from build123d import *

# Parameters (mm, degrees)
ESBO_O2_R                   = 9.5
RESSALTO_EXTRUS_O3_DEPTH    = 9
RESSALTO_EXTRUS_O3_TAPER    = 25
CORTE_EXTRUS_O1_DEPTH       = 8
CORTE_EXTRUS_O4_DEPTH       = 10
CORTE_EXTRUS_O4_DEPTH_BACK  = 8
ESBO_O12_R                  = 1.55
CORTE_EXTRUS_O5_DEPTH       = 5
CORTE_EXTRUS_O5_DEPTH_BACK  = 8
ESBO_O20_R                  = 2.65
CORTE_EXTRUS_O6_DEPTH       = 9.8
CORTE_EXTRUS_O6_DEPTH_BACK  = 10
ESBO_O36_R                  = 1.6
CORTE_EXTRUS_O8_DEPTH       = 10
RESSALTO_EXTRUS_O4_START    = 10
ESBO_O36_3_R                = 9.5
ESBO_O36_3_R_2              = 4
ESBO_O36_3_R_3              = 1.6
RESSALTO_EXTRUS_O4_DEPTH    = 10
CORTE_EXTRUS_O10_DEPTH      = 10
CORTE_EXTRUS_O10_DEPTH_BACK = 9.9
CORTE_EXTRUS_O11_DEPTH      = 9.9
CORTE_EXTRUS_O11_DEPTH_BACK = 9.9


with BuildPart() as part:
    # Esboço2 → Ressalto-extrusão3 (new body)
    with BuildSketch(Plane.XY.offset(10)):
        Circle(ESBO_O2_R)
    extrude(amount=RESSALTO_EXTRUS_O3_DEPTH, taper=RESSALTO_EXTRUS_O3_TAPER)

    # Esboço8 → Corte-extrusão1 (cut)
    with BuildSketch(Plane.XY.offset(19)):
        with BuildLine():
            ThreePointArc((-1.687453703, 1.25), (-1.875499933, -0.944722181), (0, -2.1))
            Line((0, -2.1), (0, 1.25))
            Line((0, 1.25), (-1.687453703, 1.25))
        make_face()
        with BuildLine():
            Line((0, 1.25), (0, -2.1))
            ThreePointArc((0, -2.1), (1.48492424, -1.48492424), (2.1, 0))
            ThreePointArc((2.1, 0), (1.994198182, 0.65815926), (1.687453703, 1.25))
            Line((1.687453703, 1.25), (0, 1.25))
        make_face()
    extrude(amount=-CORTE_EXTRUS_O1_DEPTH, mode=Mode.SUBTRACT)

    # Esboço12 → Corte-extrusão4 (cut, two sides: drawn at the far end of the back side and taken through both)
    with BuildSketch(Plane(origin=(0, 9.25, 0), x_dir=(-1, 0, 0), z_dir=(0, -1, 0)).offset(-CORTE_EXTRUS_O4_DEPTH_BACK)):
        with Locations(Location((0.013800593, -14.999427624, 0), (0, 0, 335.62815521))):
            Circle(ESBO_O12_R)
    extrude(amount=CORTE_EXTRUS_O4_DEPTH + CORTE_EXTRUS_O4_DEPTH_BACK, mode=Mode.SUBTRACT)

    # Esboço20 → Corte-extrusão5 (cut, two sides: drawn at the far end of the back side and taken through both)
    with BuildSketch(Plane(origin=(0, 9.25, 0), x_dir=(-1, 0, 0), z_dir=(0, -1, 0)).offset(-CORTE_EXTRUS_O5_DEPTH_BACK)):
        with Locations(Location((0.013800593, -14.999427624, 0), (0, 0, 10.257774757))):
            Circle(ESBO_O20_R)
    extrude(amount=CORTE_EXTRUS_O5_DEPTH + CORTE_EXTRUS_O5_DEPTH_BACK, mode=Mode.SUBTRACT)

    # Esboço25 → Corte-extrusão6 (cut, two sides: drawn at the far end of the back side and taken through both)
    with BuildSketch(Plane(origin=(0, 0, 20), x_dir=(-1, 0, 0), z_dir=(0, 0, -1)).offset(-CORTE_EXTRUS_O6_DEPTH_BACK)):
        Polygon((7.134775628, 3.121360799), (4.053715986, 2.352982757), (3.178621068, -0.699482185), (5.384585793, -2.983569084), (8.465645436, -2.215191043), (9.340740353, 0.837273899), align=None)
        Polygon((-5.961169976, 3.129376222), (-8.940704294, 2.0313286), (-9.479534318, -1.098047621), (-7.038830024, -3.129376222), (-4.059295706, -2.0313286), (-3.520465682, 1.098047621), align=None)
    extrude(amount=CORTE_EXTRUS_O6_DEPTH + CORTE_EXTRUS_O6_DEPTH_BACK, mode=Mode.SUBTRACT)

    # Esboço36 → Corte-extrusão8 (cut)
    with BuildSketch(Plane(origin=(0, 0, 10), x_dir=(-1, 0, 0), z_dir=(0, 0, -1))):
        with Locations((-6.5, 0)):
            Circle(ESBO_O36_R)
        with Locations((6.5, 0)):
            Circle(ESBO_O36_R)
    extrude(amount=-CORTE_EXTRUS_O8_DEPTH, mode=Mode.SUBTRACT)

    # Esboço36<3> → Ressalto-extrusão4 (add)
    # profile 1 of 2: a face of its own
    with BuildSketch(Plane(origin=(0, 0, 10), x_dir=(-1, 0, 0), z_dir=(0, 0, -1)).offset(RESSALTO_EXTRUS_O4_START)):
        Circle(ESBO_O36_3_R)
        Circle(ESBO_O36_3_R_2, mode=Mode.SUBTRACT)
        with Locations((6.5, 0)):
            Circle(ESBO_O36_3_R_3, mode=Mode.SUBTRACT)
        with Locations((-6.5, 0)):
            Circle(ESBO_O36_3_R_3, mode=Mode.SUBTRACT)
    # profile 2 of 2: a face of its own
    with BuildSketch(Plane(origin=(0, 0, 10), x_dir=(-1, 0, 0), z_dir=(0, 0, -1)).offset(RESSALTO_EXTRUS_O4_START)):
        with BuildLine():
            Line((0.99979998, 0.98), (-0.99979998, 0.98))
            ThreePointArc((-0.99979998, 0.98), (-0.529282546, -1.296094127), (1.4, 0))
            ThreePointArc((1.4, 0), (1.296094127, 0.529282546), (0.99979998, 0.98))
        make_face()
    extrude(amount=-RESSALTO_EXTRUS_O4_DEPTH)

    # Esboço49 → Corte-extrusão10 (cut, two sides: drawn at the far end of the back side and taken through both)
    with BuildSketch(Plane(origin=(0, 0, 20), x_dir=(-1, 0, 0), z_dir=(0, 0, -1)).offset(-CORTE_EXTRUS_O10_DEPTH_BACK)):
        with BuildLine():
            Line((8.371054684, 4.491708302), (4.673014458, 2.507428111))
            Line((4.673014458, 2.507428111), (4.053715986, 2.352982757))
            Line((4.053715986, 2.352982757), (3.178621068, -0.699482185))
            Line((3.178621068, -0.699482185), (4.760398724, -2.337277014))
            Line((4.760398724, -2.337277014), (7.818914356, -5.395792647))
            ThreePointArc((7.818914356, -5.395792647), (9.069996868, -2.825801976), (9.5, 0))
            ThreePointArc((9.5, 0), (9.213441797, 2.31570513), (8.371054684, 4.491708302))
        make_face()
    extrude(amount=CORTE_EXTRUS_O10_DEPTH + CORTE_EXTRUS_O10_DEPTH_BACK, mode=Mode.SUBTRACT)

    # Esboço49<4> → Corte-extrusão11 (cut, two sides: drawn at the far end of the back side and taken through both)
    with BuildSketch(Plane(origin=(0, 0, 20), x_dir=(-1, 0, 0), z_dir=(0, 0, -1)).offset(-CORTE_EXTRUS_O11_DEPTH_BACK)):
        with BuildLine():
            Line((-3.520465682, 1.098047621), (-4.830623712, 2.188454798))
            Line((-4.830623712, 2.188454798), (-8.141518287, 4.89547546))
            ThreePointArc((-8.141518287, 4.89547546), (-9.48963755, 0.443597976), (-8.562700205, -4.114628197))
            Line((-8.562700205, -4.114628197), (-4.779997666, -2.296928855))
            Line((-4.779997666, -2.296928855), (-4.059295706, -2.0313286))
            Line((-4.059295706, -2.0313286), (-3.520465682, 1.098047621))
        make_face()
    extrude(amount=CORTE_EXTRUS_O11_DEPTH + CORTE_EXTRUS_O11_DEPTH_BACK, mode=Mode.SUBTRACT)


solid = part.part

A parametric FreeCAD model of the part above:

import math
import FreeCAD as App
import Part
import Sketcher

V = App.Vector
Q = App.Units.Quantity

doc = App.newDocument("Part")
body = doc.addObject("PartDesign::Body", "Body")

sketch1 = body.newObject("Sketcher::SketchObject", "Sketch")
sketch1.AttachmentSupport = (doc.getObject("XY_Plane"), [""])
sketch1.MapMode = "FlatFace"
sketch1.AttachmentOffset = App.Placement(V(0, 0, 10), App.Rotation())
sketch1.addGeometry(Part.Circle(V(0, 0, 0), V(0, 0, 1), 10), False)
sketch1.addConstraint(Sketcher.Constraint("Coincident", 0, 3, -1, 1))
sketch1.addConstraint(Sketcher.Constraint("Diameter", 0, Q("19 mm")))
pad1 = body.newObject("PartDesign::Pad", "Pad")
pad1.Profile = sketch1
pad1.Length = 9
pad1.TaperAngle = -25

sketch2 = body.newObject("Sketcher::SketchObject", "Sketch001")
sketch2.AttachmentSupport = (doc.getObject("XY_Plane"), [""])
sketch2.MapMode = "FlatFace"
sketch2.AttachmentOffset = App.Placement(V(0, 0, 19), App.Rotation())
sketch2.addGeometry(Part.ArcOfCircle(Part.Circle(V(0, 0, 0), V(0, 0, 1), 2.1), math.radians(143), math.radians(270)), False)
sketch2.addGeometry(Part.ArcOfCircle(Part.Circle(V(0, 0, 0), V(0, 0, 1), 2.1), math.radians(-90), math.radians(0)), False)
sketch2.addGeometry(Part.ArcOfCircle(Part.Circle(V(0, 0, 0), V(0, 0, 1), 2.1), math.radians(0), math.radians(37)), False)
sketch2.addGeometry(Part.LineSegment(V(1.7, 1.2, 0), V(-1.7, 1.2, 0)), False)
sketch2.addConstraint(Sketcher.Constraint("Tangent", 0, 2, 1, 1))
sketch2.addConstraint(Sketcher.Constraint("Tangent", 1, 2, 2, 1))
sketch2.addConstraint(Sketcher.Constraint("Coincident", 2, 2, 3, 1))
sketch2.addConstraint(Sketcher.Constraint("Coincident", 3, 2, 0, 1))
sketch2.addConstraint(Sketcher.Constraint("Horizontal", 3))
sketch2.addConstraint(Sketcher.Constraint("Coincident", 0, 3, -1, 1))
sketch2.addConstraint(Sketcher.Constraint("Coincident", 2, 3, -1, 1))
sketch2.addConstraint(Sketcher.Constraint("PointOnObject", 0, 2, -2))
sketch2.addConstraint(Sketcher.Constraint("PointOnObject", 1, 2, -1))
sketch2.addConstraint(Sketcher.Constraint("Radius", 0, Q("2.1 mm")))
sketch2.addConstraint(Sketcher.Constraint("DistanceY", -1, 1, 2, 2, Q("1.25 mm")))
pocket1 = body.newObject("PartDesign::Pocket", "Pocket")
pocket1.Profile = sketch2
pocket1.Length = 8

sketch3 = body.newObject("Sketcher::SketchObject", "Sketch002")
sketch3.AttachmentSupport = (doc.getObject("XZ_Plane"), [""])
sketch3.MapMode = "FlatFace"
sketch3.AttachmentOffset = App.Placement(V(0, 0, -9.25), App.Rotation())
sketch3.addGeometry(Part.Circle(V(0, 15, 0), V(0, 0, 1), 1.6), False)
sketch3.addConstraint(Sketcher.Constraint("Diameter", 0, Q("3.1 mm")))
sketch3.addConstraint(Sketcher.Constraint("DistanceX", 0, 3, -1, 1, Q("0.013801 mm")))
sketch3.addConstraint(Sketcher.Constraint("DistanceY", -1, 1, 0, 3, Q("14.999428 mm")))
pocket2 = body.newObject("PartDesign::Pocket", "Pocket001")
pocket2.Profile = sketch3
pocket2.Type = "TwoLengths"
pocket2.Length = 10
pocket2.Length2 = 8
pocket2.Reversed = True

sketch4 = body.newObject("Sketcher::SketchObject", "Sketch003")
sketch4.AttachmentSupport = (doc.getObject("XZ_Plane"), [""])
sketch4.MapMode = "FlatFace"
sketch4.AttachmentOffset = App.Placement(V(0, 0, -9.25), App.Rotation())
sketch4.addGeometry(Part.Circle(V(0, 15, 0), V(0, 0, 1), 2.6), False)
sketch4.addConstraint(Sketcher.Constraint("Diameter", 0, Q("5.3 mm")))
sketch4.addConstraint(Sketcher.Constraint("DistanceX", 0, 3, -1, 1, Q("0.013801 mm")))
sketch4.addConstraint(Sketcher.Constraint("DistanceY", -1, 1, 0, 3, Q("14.999428 mm")))
pocket3 = body.newObject("PartDesign::Pocket", "Pocket002")
pocket3.Profile = sketch4
pocket3.Type = "TwoLengths"
pocket3.Length = 5
pocket3.Length2 = 8
pocket3.Reversed = True

sketch5 = body.newObject("Sketcher::SketchObject", "Sketch004")
sketch5.AttachmentSupport = (doc.getObject("XY_Plane"), [""])
sketch5.MapMode = "FlatFace"
sketch5.AttachmentOffset = App.Placement(V(0, 0, 20), App.Rotation())
sketch5.addGeometry(Part.LineSegment(V(-7.1, 3.1, 0), V(-4.1, 2.4, 0)), False)
sketch5.addGeometry(Part.LineSegment(V(-4.1, 2.4, 0), V(-3.2, -0.7, 0)), False)
sketch5.addGeometry(Part.LineSegment(V(-3.2, -0.7, 0), V(-5.4, -3, 0)), False)
sketch5.addGeometry(Part.LineSegment(V(-5.4, -3, 0), V(-8.5, -2.2, 0)), False)
sketch5.addGeometry(Part.LineSegment(V(-8.5, -2.2, 0), V(-9.3, 0.8, 0)), False)
sketch5.addGeometry(Part.LineSegment(V(-9.3, 0.8, 0), V(-7.1, 3.1, 0)), False)
sketch5.addGeometry(Part.LineSegment(V(6, 3.1, 0), V(8.9, 2, 0)), False)
sketch5.addGeometry(Part.LineSegment(V(8.9, 2, 0), V(9.5, -1.1, 0)), False)
sketch5.addGeometry(Part.LineSegment(V(9.5, -1.1, 0), V(7, -3.1, 0)), False)
sketch5.addGeometry(Part.LineSegment(V(7, -3.1, 0), V(4.1, -2, 0)), False)
sketch5.addGeometry(Part.LineSegment(V(4.1, -2, 0), V(3.5, 1.1, 0)), False)
sketch5.addGeometry(Part.LineSegment(V(3.5, 1.1, 0), V(6, 3.1, 0)), False)
sketch5.addConstraint(Sketcher.Constraint("Coincident", 0, 2, 1, 1))
sketch5.addConstraint(Sketcher.Constraint("Coincident", 1, 2, 2, 1))
sketch5.addConstraint(Sketcher.Constraint("Coincident", 2, 2, 3, 1))
sketch5.addConstraint(Sketcher.Constraint("Coincident", 3, 2, 4, 1))
sketch5.addConstraint(Sketcher.Constraint("Coincident", 4, 2, 5, 1))
sketch5.addConstraint(Sketcher.Constraint("Coincident", 5, 2, 0, 1))
sketch5.addConstraint(Sketcher.Constraint("Coincident", 6, 2, 7, 1))
sketch5.addConstraint(Sketcher.Constraint("Coincident", 7, 2, 8, 1))
sketch5.addConstraint(Sketcher.Constraint("Coincident", 8, 2, 9, 1))
sketch5.addConstraint(Sketcher.Constraint("Coincident", 9, 2, 10, 1))
sketch5.addConstraint(Sketcher.Constraint("Coincident", 10, 2, 11, 1))
sketch5.addConstraint(Sketcher.Constraint("Coincident", 11, 2, 6, 1))
sketch5.addConstraint(Sketcher.Constraint("Parallel", 0, 3))
sketch5.addConstraint(Sketcher.Constraint("Parallel", 1, 4))
sketch5.addConstraint(Sketcher.Constraint("Parallel", 2, 5))
sketch5.addConstraint(Sketcher.Constraint("Parallel", 6, 9))
sketch5.addConstraint(Sketcher.Constraint("Parallel", 7, 10))
sketch5.addConstraint(Sketcher.Constraint("Parallel", 8, 11))
sketch5.addConstraint(Sketcher.Constraint("Equal", 0, 1))
sketch5.addConstraint(Sketcher.Constraint("Equal", 1, 2))
sketch5.addConstraint(Sketcher.Constraint("Equal", 2, 3))
sketch5.addConstraint(Sketcher.Constraint("Equal", 5, 6))
sketch5.addConstraint(Sketcher.Constraint("Equal", 6, 7))
sketch5.addConstraint(Sketcher.Constraint("Equal", 7, 8))
sketch5.addConstraint(Sketcher.Constraint("Equal", 8, 9))
sketch5.addConstraint(Sketcher.Constraint("DistanceX", 1, 2, -1, 1, Q("3.178621 mm")))
sketch5.addConstraint(Sketcher.Constraint("DistanceY", 2, 2, -1, 1, Q("2.983569 mm")))
sketch5.addConstraint(Sketcher.Constraint("DistanceY", 3, 2, -1, 1, Q("2.215191 mm")))
sketch5.addConstraint(Sketcher.Constraint("DistanceX", 4, 2, -1, 1, Q("9.34074 mm")))
sketch5.addConstraint(Sketcher.Constraint("DistanceY", -1, 1, 5, 2, Q("3.121361 mm")))
sketch5.addConstraint(Sketcher.Constraint("DistanceY", -1, 1, 6, 2, Q("2.031329 mm")))
sketch5.addConstraint(Sketcher.Constraint("DistanceX", -1, 1, 8, 2, Q("7.03883 mm")))
sketch5.addConstraint(Sketcher.Constraint("DistanceY", 9, 2, -1, 1, Q("2.031329 mm")))
sketch5.addConstraint(Sketcher.Constraint("DistanceX", -1, 1, 11, 2, Q("5.96117 mm")))
sketch5.addConstraint(Sketcher.Constraint("DistanceX", 2, 2, 0, 2, Q("1.33087 mm")))
sketch5.addConstraint(Sketcher.Constraint("DistanceX", 0, 2, 6, 2, Q("12.99442 mm")))
pocket4 = body.newObject("PartDesign::Pocket", "Pocket003")
pocket4.Profile = sketch5
pocket4.Type = "TwoLengths"
pocket4.Length = 9.8
pocket4.Length2 = 10

sketch6 = body.newObject("Sketcher::SketchObject", "Sketch005")
sketch6.AttachmentSupport = (doc.getObject("XY_Plane"), [""])
sketch6.MapMode = "FlatFace"
sketch6.AttachmentOffset = App.Placement(V(0, 0, 10), App.Rotation())
sketch6.addGeometry(Part.Circle(V(6.5, 0, 0), V(0, 0, 1), 1.6), False)
sketch6.addGeometry(Part.Circle(V(-6.5, 0, 0), V(0, 0, 1), 1.6), False)
sketch6.addConstraint(Sketcher.Constraint("Equal", 0, 1))
sketch6.addConstraint(Sketcher.Constraint("Symmetric", 0, 3, 1, 3, -1, 1))
sketch6.addConstraint(Sketcher.Constraint("PointOnObject", 0, 3, -1))
sketch6.addConstraint(Sketcher.Constraint("Diameter", 0, Q("3.2 mm")))
sketch6.addConstraint(Sketcher.Constraint("DistanceX", 1, 3, 0, 3, Q("13 mm")))
pocket5 = body.newObject("PartDesign::Pocket", "Pocket004")
pocket5.Profile = sketch6
pocket5.Length = 10
pocket5.Reversed = True

sketch7 = body.newObject("Sketcher::SketchObject", "Sketch006")
sketch7.AttachmentSupport = (doc.getObject("XY_Plane"), [""])
sketch7.MapMode = "FlatFace"
sketch7.addGeometry(Part.Circle(V(0, 0, 0), V(0, 0, 1), 9.5), False)
sketch7.addGeometry(Part.Circle(V(6.5, 0, 0), V(0, 0, 1), 1.6), False)
sketch7.addGeometry(Part.Circle(V(0, 0, 0), V(0, 0, 1), 4), False)
sketch7.addGeometry(Part.Circle(V(-6.5, 0, 0), V(0, 0, 1), 1.6), False)
sketch7.addGeometry(Part.LineSegment(V(-1, 1, 0), V(1, 1, 0)), False)
sketch7.addGeometry(Part.ArcOfCircle(Part.Circle(V(0, 0, 0), V(0, 0, 1), 1.4), math.radians(180), math.radians(404)), False)
sketch7.addGeometry(Part.ArcOfCircle(Part.Circle(V(0, 0, 0), V(0, 0, 1), 1.4), math.radians(136), math.radians(180)), False)
sketch7.addConstraint(Sketcher.Constraint("Coincident", 4, 2, 5, 2))
sketch7.addConstraint(Sketcher.Constraint("Tangent", 5, 1, 6, 2))
sketch7.addConstraint(Sketcher.Constraint("Coincident", 6, 1, 4, 1))
sketch7.addConstraint(Sketcher.Constraint("Horizontal", 4))
sketch7.addConstraint(Sketcher.Constraint("Coincident", 0, 3, -1, 1))
sketch7.addConstraint(Sketcher.Constraint("Coincident", 2, 3, -1, 1))
sketch7.addConstraint(Sketcher.Constraint("Coincident", 5, 3, -1, 1))
sketch7.addConstraint(Sketcher.Constraint("Equal", 1, 3))
sketch7.addConstraint(Sketcher.Constraint("Equal", 5, 6))
sketch7.addConstraint(Sketcher.Constraint("Symmetric", 1, 3, 3, 3, -1, 1))
sketch7.addConstraint(Sketcher.Constraint("PointOnObject", 1, 3, -1))
sketch7.addConstraint(Sketcher.Constraint("PointOnObject", 5, 1, -1))
sketch7.addConstraint(Sketcher.Constraint("Diameter", 0, Q("19 mm")))
sketch7.addConstraint(Sketcher.Constraint("Diameter", 2, Q("8 mm")))
sketch7.addConstraint(Sketcher.Constraint("Diameter", 1, Q("3.2 mm")))
sketch7.addConstraint(Sketcher.Constraint("Radius", 5, Q("1.4 mm")))
sketch7.addConstraint(Sketcher.Constraint("DistanceX", 3, 3, 1, 3, Q("13 mm")))
sketch7.addConstraint(Sketcher.Constraint("DistanceY", -1, 1, 4, 2, Q("0.98 mm")))
pad2 = body.newObject("PartDesign::Pad", "Pad001")
pad2.Profile = sketch7
pad2.Length = 10

sketch8 = body.newObject("Sketcher::SketchObject", "Sketch007")
sketch8.AttachmentSupport = (doc.getObject("XY_Plane"), [""])
sketch8.MapMode = "FlatFace"
sketch8.AttachmentOffset = App.Placement(V(0, 0, 20), App.Rotation())
sketch8.addGeometry(Part.LineSegment(V(-8.4, 4.5, 0), V(-4.7, 2.5, 0)), False)
sketch8.addGeometry(Part.LineSegment(V(-4.7, 2.5, 0), V(-4.1, 2.4, 0)), False)
sketch8.addGeometry(Part.LineSegment(V(-4.1, 2.4, 0), V(-3.2, -0.7, 0)), False)
sketch8.addGeometry(Part.LineSegment(V(-3.2, -0.7, 0), V(-4.8, -2.3, 0)), False)
sketch8.addGeometry(Part.LineSegment(V(-4.8, -2.3, 0), V(-7.8, -5.4, 0)), False)
sketch8.addGeometry(Part.ArcOfCircle(Part.Circle(V(0, 0, 0), V(0, 0, 1), 9.5), math.radians(-180), math.radians(-145)), False)
sketch8.addGeometry(Part.ArcOfCircle(Part.Circle(V(0, 0, 0), V(0, 0, 1), 9.5), math.radians(152), math.radians(180)), False)
sketch8.addConstraint(Sketcher.Constraint("Coincident", 0, 2, 1, 1))
sketch8.addConstraint(Sketcher.Constraint("Coincident", 1, 2, 2, 1))
sketch8.addConstraint(Sketcher.Constraint("Coincident", 2, 2, 3, 1))
sketch8.addConstraint(Sketcher.Constraint("Coincident", 3, 2, 4, 1))
sketch8.addConstraint(Sketcher.Constraint("Coincident", 4, 2, 5, 2))
sketch8.addConstraint(Sketcher.Constraint("Tangent", 5, 1, 6, 2))
sketch8.addConstraint(Sketcher.Constraint("Coincident", 6, 1, 0, 1))
sketch8.addConstraint(Sketcher.Constraint("Coincident", 5, 3, -1, 1))
sketch8.addConstraint(Sketcher.Constraint("Equal", 5, 6))
sketch8.addConstraint(Sketcher.Constraint("PointOnObject", 5, 1, -1))
sketch8.addConstraint(Sketcher.Constraint("Radius", 5, Q("9.5 mm")))
sketch8.addConstraint(Sketcher.Constraint("Angle", 4, Q("-135 deg")))
sketch8.addConstraint(Sketcher.Constraint("DistanceX", 3, 2, -1, 1, Q("4.760399 mm")))
sketch8.addConstraint(Sketcher.Constraint("DistanceX", 0, 2, 1, 2, Q("0.619298 mm")))
sketch8.addConstraint(Sketcher.Constraint("DistanceX", 4, 2, 0, 2, Q("3.1459 mm")))
sketch8.addConstraint(Sketcher.Constraint("Distance", 0, Q("4.196769 mm")))
sketch8.addConstraint(Sketcher.Constraint("DistanceY", -1, 1, 0, 2, Q("2.507428 mm")))
sketch8.addConstraint(Sketcher.Constraint("DistanceX", 2, 2, -1, 1, Q("3.178621 mm")))
sketch8.addConstraint(Sketcher.Constraint("DistanceY", -1, 1, 6, 1, Q("4.491708 mm")))
sketch8.addConstraint(Sketcher.Constraint("DistanceY", 2, 2, 0, 2, Q("3.20691 mm")))
sketch8.addConstraint(Sketcher.Constraint("DistanceY", 3, 2, 1, 2, Q("4.69026 mm")))
pocket6 = body.newObject("PartDesign::Pocket", "Pocket005")
pocket6.Profile = sketch8
pocket6.Type = "TwoLengths"
pocket6.Length = 10
pocket6.Length2 = 9.9

sketch9 = body.newObject("Sketcher::SketchObject", "Sketch008")
sketch9.AttachmentSupport = (doc.getObject("XY_Plane"), [""])
sketch9.MapMode = "FlatFace"
sketch9.AttachmentOffset = App.Placement(V(0, 0, 20), App.Rotation())
sketch9.addGeometry(Part.LineSegment(V(3.5, 1.1, 0), V(4.8, 2.2, 0)), False)
sketch9.addGeometry(Part.LineSegment(V(4.8, 2.2, 0), V(8.1, 4.9, 0)), False)
sketch9.addGeometry(Part.ArcOfCircle(Part.Circle(V(0, 0, 0), V(0, 0, 1), 9.5), math.radians(-26), math.radians(31)), False)
sketch9.addGeometry(Part.LineSegment(V(8.6, -4.1, 0), V(4.8, -2.3, 0)), False)
sketch9.addGeometry(Part.LineSegment(V(4.8, -2.3, 0), V(4.1, -2, 0)), False)
sketch9.addGeometry(Part.LineSegment(V(4.1, -2, 0), V(3.5, 1.1, 0)), False)
sketch9.addConstraint(Sketcher.Constraint("Coincident", 0, 2, 1, 1))
sketch9.addConstraint(Sketcher.Constraint("Coincident", 1, 2, 2, 2))
sketch9.addConstraint(Sketcher.Constraint("Coincident", 2, 1, 3, 1))
sketch9.addConstraint(Sketcher.Constraint("Coincident", 3, 2, 4, 1))
sketch9.addConstraint(Sketcher.Constraint("Coincident", 4, 2, 5, 1))
sketch9.addConstraint(Sketcher.Constraint("Coincident", 5, 2, 0, 1))
sketch9.addConstraint(Sketcher.Constraint("Coincident", 2, 3, -1, 1))
sketch9.addConstraint(Sketcher.Constraint("Radius", 2, Q("9.5 mm")))
sketch9.addConstraint(Sketcher.Constraint("DistanceX", -1, 1, 2, 1, Q("8.5627 mm")))
sketch9.addConstraint(Sketcher.Constraint("DistanceY", 2, 1, 3, 2, Q("1.817699 mm")))
sketch9.addConstraint(Sketcher.Constraint("DistanceX", 4, 2, 3, 2, Q("0.720702 mm")))
sketch9.addConstraint(Sketcher.Constraint("DistanceY", 3, 2, 4, 2, Q("0.2656 mm")))
sketch9.addConstraint(Sketcher.Constraint("Distance", 1, Q("4.276679 mm")))
sketch9.addConstraint(Sketcher.Constraint("Distance", 3, Q("4.196769 mm")))
sketch9.addConstraint(Sketcher.Constraint("DistanceX", -1, 1, 1, 2, Q("8.141518 mm")))
sketch9.addConstraint(Sketcher.Constraint("DistanceY", 0, 2, 1, 2, Q("2.707021 mm")))
sketch9.addConstraint(Sketcher.Constraint("DistanceX", 5, 2, 0, 2, Q("1.310158 mm")))
sketch9.addConstraint(Sketcher.Constraint("Distance", 0, Q("1.704553 mm")))
pocket7 = body.newObject("PartDesign::Pocket", "Pocket006")
pocket7.Profile = sketch9
pocket7.Type = "TwoLengths"
pocket7.Length = 9.9
pocket7.Length2 = 9.9

doc.recompute()
